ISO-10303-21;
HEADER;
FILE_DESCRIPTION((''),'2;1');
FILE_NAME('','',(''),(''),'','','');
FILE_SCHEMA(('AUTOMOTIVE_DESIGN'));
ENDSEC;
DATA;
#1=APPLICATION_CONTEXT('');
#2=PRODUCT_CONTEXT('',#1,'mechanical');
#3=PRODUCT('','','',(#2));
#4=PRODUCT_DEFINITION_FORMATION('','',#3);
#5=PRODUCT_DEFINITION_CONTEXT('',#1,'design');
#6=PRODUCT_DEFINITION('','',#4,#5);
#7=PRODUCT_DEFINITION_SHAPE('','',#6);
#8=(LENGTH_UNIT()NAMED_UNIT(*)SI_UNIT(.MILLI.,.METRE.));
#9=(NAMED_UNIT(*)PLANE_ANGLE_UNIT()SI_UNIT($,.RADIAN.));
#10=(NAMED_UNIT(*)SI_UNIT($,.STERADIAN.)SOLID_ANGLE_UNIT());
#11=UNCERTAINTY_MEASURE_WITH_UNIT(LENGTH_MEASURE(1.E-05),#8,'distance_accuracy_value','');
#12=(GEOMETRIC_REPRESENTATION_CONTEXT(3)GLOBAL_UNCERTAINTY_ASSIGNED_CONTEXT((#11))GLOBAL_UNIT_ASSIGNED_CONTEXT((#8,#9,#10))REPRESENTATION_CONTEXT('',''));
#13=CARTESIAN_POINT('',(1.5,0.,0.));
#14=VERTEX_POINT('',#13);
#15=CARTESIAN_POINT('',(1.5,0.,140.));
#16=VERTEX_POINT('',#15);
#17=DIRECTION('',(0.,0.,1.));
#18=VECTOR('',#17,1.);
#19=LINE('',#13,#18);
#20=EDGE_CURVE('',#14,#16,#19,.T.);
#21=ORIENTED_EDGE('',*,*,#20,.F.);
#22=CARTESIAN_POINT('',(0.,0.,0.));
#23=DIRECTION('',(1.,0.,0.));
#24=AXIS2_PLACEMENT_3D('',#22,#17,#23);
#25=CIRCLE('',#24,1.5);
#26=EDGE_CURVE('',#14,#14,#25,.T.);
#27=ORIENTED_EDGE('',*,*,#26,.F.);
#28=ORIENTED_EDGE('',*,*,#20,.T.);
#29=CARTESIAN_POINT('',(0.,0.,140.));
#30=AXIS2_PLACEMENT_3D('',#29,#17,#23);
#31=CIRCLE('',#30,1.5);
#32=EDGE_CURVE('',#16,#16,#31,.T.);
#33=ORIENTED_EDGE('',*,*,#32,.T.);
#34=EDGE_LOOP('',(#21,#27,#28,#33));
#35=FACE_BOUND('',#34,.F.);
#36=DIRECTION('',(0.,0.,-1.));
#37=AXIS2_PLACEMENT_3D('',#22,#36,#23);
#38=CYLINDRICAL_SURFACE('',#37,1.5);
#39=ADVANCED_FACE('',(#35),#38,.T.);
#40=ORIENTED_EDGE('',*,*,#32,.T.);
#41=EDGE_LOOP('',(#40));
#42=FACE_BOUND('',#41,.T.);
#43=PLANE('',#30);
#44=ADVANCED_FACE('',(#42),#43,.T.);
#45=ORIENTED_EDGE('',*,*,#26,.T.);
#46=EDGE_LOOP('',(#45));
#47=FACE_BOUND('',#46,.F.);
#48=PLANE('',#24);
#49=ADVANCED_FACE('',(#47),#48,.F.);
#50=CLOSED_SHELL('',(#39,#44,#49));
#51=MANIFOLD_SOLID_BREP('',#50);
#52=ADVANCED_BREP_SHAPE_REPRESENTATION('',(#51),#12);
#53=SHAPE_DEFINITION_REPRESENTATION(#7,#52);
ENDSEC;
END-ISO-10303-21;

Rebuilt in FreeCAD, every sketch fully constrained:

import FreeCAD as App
import Part
import Sketcher
from FreeCAD import Vector

doc = App.newDocument("Part")
body = doc.addObject("PartDesign::Body", "Body")

# Sketch on XY plane
sketch1 = body.newObject("Sketcher::SketchObject", "Sketch")
sketch1.AttachmentSupport = (doc.getObject("XY_Plane"), [""])
sketch1.MapMode = "FlatFace"
sketch1.addGeometry(Part.Circle(Vector(0, 0, 0), Vector(0, 0, 1), 1.5), False)
sketch1.addConstraint([
    Sketcher.Constraint("Coincident", 0, 3, -1, 1),
    Sketcher.Constraint("Diameter", 0, 3.0),
])
pad1 = body.newObject("PartDesign::Pad", "Pad")
pad1.Profile = sketch1
pad1.Length = 140

doc.recompute()
